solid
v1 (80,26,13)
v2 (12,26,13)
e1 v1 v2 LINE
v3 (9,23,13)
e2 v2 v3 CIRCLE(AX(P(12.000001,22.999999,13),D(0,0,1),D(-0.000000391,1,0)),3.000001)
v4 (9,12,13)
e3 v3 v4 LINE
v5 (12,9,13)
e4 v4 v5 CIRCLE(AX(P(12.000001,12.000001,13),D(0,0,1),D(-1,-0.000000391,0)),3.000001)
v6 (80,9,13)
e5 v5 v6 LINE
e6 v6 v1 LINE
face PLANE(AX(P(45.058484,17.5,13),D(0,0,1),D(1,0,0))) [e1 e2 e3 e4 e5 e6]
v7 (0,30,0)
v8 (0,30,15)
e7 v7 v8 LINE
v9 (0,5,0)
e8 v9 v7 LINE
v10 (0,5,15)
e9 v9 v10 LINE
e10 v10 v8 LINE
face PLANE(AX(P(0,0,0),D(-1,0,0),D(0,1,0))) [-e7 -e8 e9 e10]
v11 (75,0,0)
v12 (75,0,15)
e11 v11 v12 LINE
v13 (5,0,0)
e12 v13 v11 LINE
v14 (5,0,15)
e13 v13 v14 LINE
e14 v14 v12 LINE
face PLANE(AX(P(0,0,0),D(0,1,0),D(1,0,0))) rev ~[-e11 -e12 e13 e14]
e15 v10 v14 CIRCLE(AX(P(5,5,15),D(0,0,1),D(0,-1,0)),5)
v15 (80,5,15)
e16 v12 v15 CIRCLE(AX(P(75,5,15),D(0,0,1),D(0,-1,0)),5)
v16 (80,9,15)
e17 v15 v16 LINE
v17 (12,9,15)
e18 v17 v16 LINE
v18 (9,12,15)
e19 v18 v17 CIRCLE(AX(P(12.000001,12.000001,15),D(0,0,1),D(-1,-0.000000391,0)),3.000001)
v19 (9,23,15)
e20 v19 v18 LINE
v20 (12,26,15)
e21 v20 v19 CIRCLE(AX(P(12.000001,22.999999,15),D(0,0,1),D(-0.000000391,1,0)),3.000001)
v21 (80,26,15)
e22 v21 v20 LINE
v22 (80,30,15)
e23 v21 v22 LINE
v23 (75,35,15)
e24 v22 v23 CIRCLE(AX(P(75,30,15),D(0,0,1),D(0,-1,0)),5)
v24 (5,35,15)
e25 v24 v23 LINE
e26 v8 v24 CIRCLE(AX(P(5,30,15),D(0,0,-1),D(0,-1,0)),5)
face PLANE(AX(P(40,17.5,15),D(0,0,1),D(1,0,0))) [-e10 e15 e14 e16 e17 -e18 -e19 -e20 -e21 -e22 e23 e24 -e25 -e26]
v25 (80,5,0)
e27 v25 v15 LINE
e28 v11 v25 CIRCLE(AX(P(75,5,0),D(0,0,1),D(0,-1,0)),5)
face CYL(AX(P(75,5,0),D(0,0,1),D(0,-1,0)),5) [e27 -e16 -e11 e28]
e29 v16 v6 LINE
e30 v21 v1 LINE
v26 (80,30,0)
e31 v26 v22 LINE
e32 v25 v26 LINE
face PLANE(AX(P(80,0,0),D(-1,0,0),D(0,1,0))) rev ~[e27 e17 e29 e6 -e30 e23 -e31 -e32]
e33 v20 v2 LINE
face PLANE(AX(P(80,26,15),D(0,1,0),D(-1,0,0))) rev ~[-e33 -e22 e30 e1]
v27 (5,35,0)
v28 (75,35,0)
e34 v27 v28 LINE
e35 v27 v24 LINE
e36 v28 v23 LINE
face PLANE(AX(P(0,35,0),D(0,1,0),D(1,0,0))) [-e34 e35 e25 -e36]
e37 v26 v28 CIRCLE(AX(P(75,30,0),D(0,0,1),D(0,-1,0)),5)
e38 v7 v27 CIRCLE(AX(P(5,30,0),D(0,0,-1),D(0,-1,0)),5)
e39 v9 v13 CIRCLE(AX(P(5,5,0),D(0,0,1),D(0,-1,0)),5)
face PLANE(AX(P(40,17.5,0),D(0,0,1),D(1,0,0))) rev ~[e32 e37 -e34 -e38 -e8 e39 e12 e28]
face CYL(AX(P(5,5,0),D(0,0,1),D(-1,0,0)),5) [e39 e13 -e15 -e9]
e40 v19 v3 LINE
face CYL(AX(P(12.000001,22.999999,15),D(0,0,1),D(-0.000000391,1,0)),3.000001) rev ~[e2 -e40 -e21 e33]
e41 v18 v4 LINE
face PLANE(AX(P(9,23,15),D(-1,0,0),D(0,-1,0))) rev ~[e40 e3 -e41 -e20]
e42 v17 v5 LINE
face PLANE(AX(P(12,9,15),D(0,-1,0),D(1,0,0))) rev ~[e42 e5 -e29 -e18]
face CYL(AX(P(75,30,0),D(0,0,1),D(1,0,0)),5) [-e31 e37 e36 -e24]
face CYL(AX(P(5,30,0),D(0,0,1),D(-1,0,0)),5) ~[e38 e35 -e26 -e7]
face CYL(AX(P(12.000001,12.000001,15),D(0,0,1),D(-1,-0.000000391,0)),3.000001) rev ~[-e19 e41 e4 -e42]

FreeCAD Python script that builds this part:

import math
import FreeCAD as App
import Part
import Sketcher

V = App.Vector
Q = App.Units.Quantity


def edges_at(feature, points):
    """Names of the edges that pass closest to the given points."""
    edges = feature.Shape.Edges
    near = lambda p: min(range(len(edges)), key=lambda i: edges[i].distToShape(Part.Vertex(*p))[0])
    return sorted({f"Edge{near(p) + 1}" for p in points})


def add_polygon(sketch, points):
    """Adds a closed chain of lines whose ends are joined by coincident constraints."""
    first, n = sketch.GeometryCount, len(points)
    for a, b in zip(points, points[1:] + points[:1]):
        sketch.addGeometry(Part.LineSegment(App.Vector(*a, 0), App.Vector(*b, 0)), False)
    for i in range(n):
        sketch.addConstraint(Sketcher.Constraint("Coincident", first + i, 2, first + (i + 1) % n, 1))

doc = App.newDocument("Part")
body = doc.addObject("PartDesign::Body", "Body")

# Sketch on XY plane
sketch1 = body.newObject("Sketcher::SketchObject", "Sketch")
sketch1.AttachmentSupport = (doc.getObject("XY_Plane"), [""])
sketch1.MapMode = "FlatFace"
add_polygon(sketch1, [(0, 35), (0, 0), (80, 0), (80, 35)])  # lines 0-3
sketch1.addConstraint([
    Sketcher.Constraint("Vertical", 0),
    Sketcher.Constraint("Horizontal", 1),
    Sketcher.Constraint("Vertical", 2),
    Sketcher.Constraint("Horizontal", 3),
    Sketcher.Constraint("Coincident", 0, 2, -1, 1),
    Sketcher.Constraint("DistanceX", 1, 1, 1, 2, Q("80 mm")),
    Sketcher.Constraint("DistanceY", 0, 2, 0, 1, Q("35 mm")),
])
pad1 = body.newObject("PartDesign::Pad", "Pad")
pad1.Profile = sketch1
pad1.Length = 15
doc.recompute()

fillet = body.newObject("PartDesign::Fillet", "Fillet")
fillet.Base = (pad1, edges_at(pad1, [
    (0, 0, 7.5),
    (80, 0, 7.5),
    (80, 35, 7.5),
    (0, 35, 7.5),
]))
fillet.Radius = 5

# Sketch on XY plane
sketch2 = body.newObject("Sketcher::SketchObject", "Sketch001")
sketch2.AttachmentSupport = (doc.getObject("XY_Plane"), [""])
sketch2.MapMode = "FlatFace"
sketch2.AttachmentOffset = App.Placement(V(0, 0, 15), App.Rotation())
sketch2.addGeometry([
    Part.LineSegment(V(80, 26, 0), V(12, 26, 0)),  # 0
    Part.ArcOfCircle(Part.Circle(V(12, 23, 0), V(0, 0, 1), 3), math.radians(90), math.radians(180)),  # 1
    Part.LineSegment(V(9, 23, 0), V(9, 12, 0)),  # 2
    Part.ArcOfCircle(Part.Circle(V(12, 12, 0), V(0, 0, 1), 3), math.radians(-180), math.radians(-90)),  # 3
    Part.LineSegment(V(12, 9, 0), V(80, 9, 0)),  # 4
    Part.LineSegment(V(80, 9, 0), V(80, 26, 0)),  # 5
], False)
sketch2.addConstraint([
    Sketcher.Constraint("Tangent", 0, 2, 1, 1),
    Sketcher.Constraint("Tangent", 1, 2, 2, 1),
    Sketcher.Constraint("Tangent", 2, 2, 3, 1),
    Sketcher.Constraint("Tangent", 3, 2, 4, 1),
    Sketcher.Constraint("Coincident", 4, 2, 5, 1),
    Sketcher.Constraint("Coincident", 5, 2, 0, 1),
    Sketcher.Constraint("Horizontal", 0),
    Sketcher.Constraint("Vertical", 2),
    Sketcher.Constraint("Horizontal", 4),
    Sketcher.Constraint("Vertical", 5),
    Sketcher.Constraint("Equal", 1, 3),
    Sketcher.Constraint("Radius", 1, Q("3.000001 mm")),
    Sketcher.Constraint("DistanceX", 0, 2, 0, 1, Q("68 mm")),
    Sketcher.Constraint("DistanceY", 2, 2, 2, 1, Q("11 mm")),
    Sketcher.Constraint("DistanceX", -1, 1, 1, 3, Q("12.000001 mm")),
    Sketcher.Constraint("DistanceY", -1, 1, 1, 3, Q("22.999999 mm")),
])
pocket1 = body.newObject("PartDesign::Pocket", "Pocket")
pocket1.Profile = sketch2
pocket1.Length = 2

doc.recompute()
